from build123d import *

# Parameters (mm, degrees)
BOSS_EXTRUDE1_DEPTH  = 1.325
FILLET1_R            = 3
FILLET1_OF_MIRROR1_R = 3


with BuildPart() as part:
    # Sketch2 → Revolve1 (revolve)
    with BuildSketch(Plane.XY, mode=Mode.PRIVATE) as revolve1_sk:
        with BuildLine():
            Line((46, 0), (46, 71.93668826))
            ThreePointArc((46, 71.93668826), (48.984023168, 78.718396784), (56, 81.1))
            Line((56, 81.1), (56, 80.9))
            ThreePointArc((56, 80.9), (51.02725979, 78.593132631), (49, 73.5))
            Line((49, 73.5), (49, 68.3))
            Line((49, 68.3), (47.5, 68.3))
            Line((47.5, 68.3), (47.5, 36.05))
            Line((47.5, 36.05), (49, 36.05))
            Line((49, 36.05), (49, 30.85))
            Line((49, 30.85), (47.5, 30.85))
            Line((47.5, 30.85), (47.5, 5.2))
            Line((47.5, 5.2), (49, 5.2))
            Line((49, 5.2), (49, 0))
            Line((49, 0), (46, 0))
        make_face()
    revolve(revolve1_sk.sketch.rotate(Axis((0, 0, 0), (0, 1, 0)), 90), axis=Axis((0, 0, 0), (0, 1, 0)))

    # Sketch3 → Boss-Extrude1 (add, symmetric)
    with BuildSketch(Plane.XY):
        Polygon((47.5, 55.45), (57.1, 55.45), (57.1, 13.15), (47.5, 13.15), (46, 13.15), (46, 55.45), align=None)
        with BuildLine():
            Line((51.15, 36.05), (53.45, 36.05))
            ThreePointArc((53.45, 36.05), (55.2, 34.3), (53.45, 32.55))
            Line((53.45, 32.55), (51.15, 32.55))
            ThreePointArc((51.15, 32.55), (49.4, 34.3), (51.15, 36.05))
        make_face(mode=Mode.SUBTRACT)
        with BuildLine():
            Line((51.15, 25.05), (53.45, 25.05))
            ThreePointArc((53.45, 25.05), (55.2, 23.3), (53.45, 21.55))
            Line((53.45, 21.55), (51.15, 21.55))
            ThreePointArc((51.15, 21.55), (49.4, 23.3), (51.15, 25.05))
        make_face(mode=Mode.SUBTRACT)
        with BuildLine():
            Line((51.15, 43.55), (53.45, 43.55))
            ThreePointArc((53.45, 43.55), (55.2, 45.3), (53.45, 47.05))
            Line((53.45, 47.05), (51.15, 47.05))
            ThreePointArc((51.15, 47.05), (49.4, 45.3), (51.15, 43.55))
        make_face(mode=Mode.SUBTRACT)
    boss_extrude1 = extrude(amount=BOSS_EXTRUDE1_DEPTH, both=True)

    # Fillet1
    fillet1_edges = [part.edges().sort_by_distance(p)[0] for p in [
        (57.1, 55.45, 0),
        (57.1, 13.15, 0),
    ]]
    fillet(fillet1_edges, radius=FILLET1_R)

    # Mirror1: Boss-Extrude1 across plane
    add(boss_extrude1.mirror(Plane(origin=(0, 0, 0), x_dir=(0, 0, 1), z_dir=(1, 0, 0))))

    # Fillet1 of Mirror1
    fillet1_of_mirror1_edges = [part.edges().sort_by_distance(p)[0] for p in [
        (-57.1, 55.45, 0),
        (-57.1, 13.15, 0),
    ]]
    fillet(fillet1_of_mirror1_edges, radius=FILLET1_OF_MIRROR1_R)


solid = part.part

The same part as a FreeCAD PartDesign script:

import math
import FreeCAD as App
import Part
import Sketcher
Q = App.Units.Quantity


def edges_at(feature, points):
    """Names of the edges that pass closest to the given points."""
    edges = feature.Shape.Edges
    near = lambda p: min(range(len(edges)), key=lambda i: edges[i].distToShape(Part.Vertex(*p))[0])
    return sorted({f"Edge{near(p) + 1}" for p in points})

doc = App.newDocument("Part")
body = doc.addObject("PartDesign::Body", "Body")

# Sketch on XY plane
sketch1 = body.newObject("Sketcher::SketchObject", "Sketch")
sketch1.AttachmentSupport = (doc.getObject("XY_Plane"), [""])
sketch1.MapMode = "FlatFace"
sketch1.addGeometry(Part.LineSegment(App.Vector(46, 71.936688, 0), App.Vector(46, 0, 0)), False)
sketch1.addGeometry(Part.LineSegment(App.Vector(46, 0, 0), App.Vector(49, 0, 0)), False)
sketch1.addGeometry(Part.LineSegment(App.Vector(49, 0, 0), App.Vector(49, 5.2, 0)), False)
sketch1.addGeometry(Part.LineSegment(App.Vector(49, 5.2, 0), App.Vector(47.5, 5.2, 0)), False)
sketch1.addGeometry(Part.LineSegment(App.Vector(47.5, 5.2, 0), App.Vector(47.5, 30.85, 0)), False)
sketch1.addGeometry(Part.LineSegment(App.Vector(47.5, 30.85, 0), App.Vector(49, 30.85, 0)), False)
sketch1.addGeometry(Part.LineSegment(App.Vector(49, 30.85, 0), App.Vector(49, 36.05, 0)), False)
sketch1.addGeometry(Part.LineSegment(App.Vector(49, 36.05, 0), App.Vector(47.5, 36.05, 0)), False)
sketch1.addGeometry(Part.LineSegment(App.Vector(47.5, 36.05, 0), App.Vector(47.5, 68.3, 0)), False)
sketch1.addGeometry(Part.LineSegment(App.Vector(47.5, 68.3, 0), App.Vector(49, 68.3, 0)), False)
sketch1.addGeometry(Part.LineSegment(App.Vector(49, 68.3, 0), App.Vector(49, 73.5, 0)), False)
sketch1.addGeometry(Part.ArcOfCircle(Part.Circle(App.Vector(56.411429, 73.5, 0), App.Vector(0, 0, 1), 7.411429), math.radians(93.182281), math.radians(180)), False)
sketch1.addGeometry(Part.LineSegment(App.Vector(56, 80.9, 0), App.Vector(56, 81.1, 0)), False)
sketch1.addGeometry(Part.ArcOfCircle(Part.Circle(App.Vector(55.198314, 71.936688, 0), App.Vector(0, 0, 1), 9.198314), math.radians(85), math.radians(180)), False)
sketch1.addConstraint(Sketcher.Constraint("Coincident", 0, 2, 1, 1))
sketch1.addConstraint(Sketcher.Constraint("Coincident", 1, 2, 2, 1))
sketch1.addConstraint(Sketcher.Constraint("Coincident", 2, 2, 3, 1))
sketch1.addConstraint(Sketcher.Constraint("Coincident", 3, 2, 4, 1))
sketch1.addConstraint(Sketcher.Constraint("Coincident", 4, 2, 5, 1))
sketch1.addConstraint(Sketcher.Constraint("Coincident", 5, 2, 6, 1))
sketch1.addConstraint(Sketcher.Constraint("Coincident", 6, 2, 7, 1))
sketch1.addConstraint(Sketcher.Constraint("Coincident", 7, 2, 8, 1))
sketch1.addConstraint(Sketcher.Constraint("Coincident", 8, 2, 9, 1))
sketch1.addConstraint(Sketcher.Constraint("Coincident", 9, 2, 10, 1))
sketch1.addConstraint(Sketcher.Constraint("Tangent", 10, 2, 11, 2))
sketch1.addConstraint(Sketcher.Constraint("Coincident", 11, 1, 12, 1))
sketch1.addConstraint(Sketcher.Constraint("Coincident", 12, 2, 13, 1))
sketch1.addConstraint(Sketcher.Constraint("Tangent", 13, 2, 0, 1))
sketch1.addConstraint(Sketcher.Constraint("Vertical", 0))
sketch1.addConstraint(Sketcher.Constraint("Horizontal", 1))
sketch1.addConstraint(Sketcher.Constraint("Vertical", 2))
sketch1.addConstraint(Sketcher.Constraint("Horizontal", 3))
sketch1.addConstraint(Sketcher.Constraint("Vertical", 4))
sketch1.addConstraint(Sketcher.Constraint("Horizontal", 5))
sketch1.addConstraint(Sketcher.Constraint("Vertical", 6))
sketch1.addConstraint(Sketcher.Constraint("Horizontal", 7))
sketch1.addConstraint(Sketcher.Constraint("Vertical", 8))
sketch1.addConstraint(Sketcher.Constraint("Horizontal", 9))
sketch1.addConstraint(Sketcher.Constraint("Vertical", 10))
sketch1.addConstraint(Sketcher.Constraint("Vertical", 12))
sketch1.addConstraint(Sketcher.Constraint("PointOnObject", 0, 2, -1))
sketch1.addConstraint(Sketcher.Constraint("Vertical", 2, 2, 5, 2))
sketch1.addConstraint(Sketcher.Constraint("Vertical", 4, 2, 7, 2))
sketch1.addConstraint(Sketcher.Constraint("Vertical", 6, 2, 9, 2))
sketch1.addConstraint(Sketcher.Constraint("Equal", 2, 6))
sketch1.addConstraint(Sketcher.Constraint("Equal", 6, 10))
sketch1.addConstraint(Sketcher.Constraint("DistanceX", 1, 1, 1, 2, Q("3 mm")))
sketch1.addConstraint(Sketcher.Constraint("DistanceX", 3, 2, 3, 1, Q("1.5 mm")))
sketch1.addConstraint(Sketcher.Constraint("DistanceY", 2, 1, 2, 2, Q("5.2 mm")))
sketch1.addConstraint(Sketcher.Constraint("DistanceY", 12, 1, 12, 2, Q("0.2 mm")))
sketch1.addConstraint(Sketcher.Constraint("DistanceX", -1, 1, 0, 2, Q("46 mm")))
sketch1.addConstraint(Sketcher.Constraint("DistanceX", -1, 1, 11, 1, Q("56 mm")))
sketch1.addConstraint(Sketcher.Constraint("DistanceY", 4, 1, 4, 2, Q("25.65 mm")))
sketch1.addConstraint(Sketcher.Constraint("DistanceY", 8, 1, 8, 2, Q("32.25 mm")))
sketch1.addConstraint(Sketcher.Constraint("DistanceY", -1, 1, 11, 1, Q("80.9 mm")))
sketch1.addConstraint(Sketcher.Constraint("Radius", 13, Q("9.198314 mm")))
revolution = body.newObject("PartDesign::Revolution", "Revolution")
revolution.Profile = sketch1
revolution.ReferenceAxis = (sketch1, ["V_Axis"])
revolution.Angle = 360

# Sketch on XY plane
sketch2 = body.newObject("Sketcher::SketchObject", "Sketch001")
sketch2.AttachmentSupport = (doc.getObject("XY_Plane"), [""])
sketch2.MapMode = "FlatFace"
sketch2.addGeometry(Part.LineSegment(App.Vector(57.1, 55.45, 0), App.Vector(46, 55.45, 0)), False)
sketch2.addGeometry(Part.LineSegment(App.Vector(46, 55.45, 0), App.Vector(46, 13.15, 0)), False)
sketch2.addGeometry(Part.LineSegment(App.Vector(46, 13.15, 0), App.Vector(57.1, 13.15, 0)), False)
sketch2.addGeometry(Part.LineSegment(App.Vector(57.1, 13.15, 0), App.Vector(57.1, 55.45, 0)), False)
sketch2.addGeometry(Part.LineSegment(App.Vector(51.15, 25.05, 0), App.Vector(53.45, 25.05, 0)), False)
sketch2.addGeometry(Part.ArcOfCircle(Part.Circle(App.Vector(53.45, 23.3, 0), App.Vector(0, 0, 1), 1.75), math.radians(-90), math.radians(90)), False)
sketch2.addGeometry(Part.LineSegment(App.Vector(53.45, 21.55, 0), App.Vector(51.15, 21.55, 0)), False)
sketch2.addGeometry(Part.ArcOfCircle(Part.Circle(App.Vector(51.15, 23.3, 0), App.Vector(0, 0, 1), 1.75), math.radians(90), math.radians(270)), False)
sketch2.addGeometry(Part.LineSegment(App.Vector(51.15, 36.05, 0), App.Vector(53.45, 36.05, 0)), False)
sketch2.addGeometry(Part.ArcOfCircle(Part.Circle(App.Vector(53.45, 34.3, 0), App.Vector(0, 0, 1), 1.75), math.radians(-90), math.radians(90)), False)
sketch2.addGeometry(Part.LineSegment(App.Vector(53.45, 32.55, 0), App.Vector(51.15, 32.55, 0)), False)
sketch2.addGeometry(Part.ArcOfCircle(Part.Circle(App.Vector(51.15, 34.3, 0), App.Vector(0, 0, 1), 1.75), math.radians(90), math.radians(270)), False)
sketch2.addGeometry(Part.ArcOfCircle(Part.Circle(App.Vector(51.15, 45.3, 0), App.Vector(0, 0, 1), 1.75), math.radians(90), math.radians(270)), False)
sketch2.addGeometry(Part.LineSegment(App.Vector(51.15, 47.05, 0), App.Vector(53.45, 47.05, 0)), False)
sketch2.addGeometry(Part.ArcOfCircle(Part.Circle(App.Vector(53.45, 45.3, 0), App.Vector(0, 0, 1), 1.75), math.radians(-90), math.radians(90)), False)
sketch2.addGeometry(Part.LineSegment(App.Vector(53.45, 43.55, 0), App.Vector(51.15, 43.55, 0)), False)
sketch2.addConstraint(Sketcher.Constraint("Coincident", 0, 2, 1, 1))
sketch2.addConstraint(Sketcher.Constraint("Coincident", 1, 2, 2, 1))
sketch2.addConstraint(Sketcher.Constraint("Coincident", 2, 2, 3, 1))
sketch2.addConstraint(Sketcher.Constraint("Coincident", 3, 2, 0, 1))
sketch2.addConstraint(Sketcher.Constraint("Tangent", 4, 2, 5, 2))
sketch2.addConstraint(Sketcher.Constraint("Tangent", 5, 1, 6, 1))
sketch2.addConstraint(Sketcher.Constraint("Tangent", 6, 2, 7, 2))
sketch2.addConstraint(Sketcher.Constraint("Tangent", 7, 1, 4, 1))
sketch2.addConstraint(Sketcher.Constraint("Tangent", 8, 2, 9, 2))
sketch2.addConstraint(Sketcher.Constraint("Tangent", 9, 1, 10, 1))
sketch2.addConstraint(Sketcher.Constraint("Tangent", 10, 2, 11, 2))
sketch2.addConstraint(Sketcher.Constraint("Tangent", 11, 1, 8, 1))
sketch2.addConstraint(Sketcher.Constraint("Tangent", 12, 1, 13, 1))
sketch2.addConstraint(Sketcher.Constraint("Tangent", 13, 2, 14, 2))
sketch2.addConstraint(Sketcher.Constraint("Tangent", 14, 1, 15, 1))
sketch2.addConstraint(Sketcher.Constraint("Tangent", 15, 2, 12, 2))
sketch2.addConstraint(Sketcher.Constraint("Horizontal", 0))
sketch2.addConstraint(Sketcher.Constraint("Vertical", 1))
sketch2.addConstraint(Sketcher.Constraint("Horizontal", 2))
sketch2.addConstraint(Sketcher.Constraint("Vertical", 3))
sketch2.addConstraint(Sketcher.Constraint("Horizontal", 4))
sketch2.addConstraint(Sketcher.Constraint("Horizontal", 6))
sketch2.addConstraint(Sketcher.Constraint("Horizontal", 8))
sketch2.addConstraint(Sketcher.Constraint("Horizontal", 10))
sketch2.addConstraint(Sketcher.Constraint("Horizontal", 13))
sketch2.addConstraint(Sketcher.Constraint("Horizontal", 15))
sketch2.addConstraint(Sketcher.Constraint("Equal", 7, 9))
sketch2.addConstraint(Sketcher.Constraint("Equal", 11, 12))
sketch2.addConstraint(Sketcher.Constraint("Vertical", 5, 3, 9, 3))
sketch2.addConstraint(Sketcher.Constraint("Vertical", 7, 3, 11, 3))
sketch2.addConstraint(Sketcher.Constraint("Vertical", 11, 3, 12, 3))
sketch2.addConstraint(Sketcher.Constraint("Vertical", 9, 3, 14, 3))
sketch2.addConstraint(Sketcher.Constraint("Radius", 5, Q("1.75 mm")))
sketch2.addConstraint(Sketcher.Constraint("DistanceX", 0, 2, 0, 1, Q("11.1 mm")))
sketch2.addConstraint(Sketcher.Constraint("DistanceX", 4, 1, 4, 2, Q("2.3 mm")))
sketch2.addConstraint(Sketcher.Constraint("DistanceY", 1, 2, 1, 1, Q("42.3 mm")))
sketch2.addConstraint(Sketcher.Constraint("DistanceX", -1, 1, 0, 2, Q("46 mm")))
sketch2.addConstraint(Sketcher.Constraint("DistanceY", 5, 3, 9, 3, Q("11 mm")))
sketch2.addConstraint(Sketcher.Constraint("DistanceY", 11, 3, 12, 3, Q("11 mm")))
sketch2.addConstraint(Sketcher.Constraint("DistanceY", -1, 1, 5, 3, Q("23.3 mm")))
sketch2.addConstraint(Sketcher.Constraint("DistanceY", 2, 2, 4, 2, Q("11.9 mm")))
sketch2.addConstraint(Sketcher.Constraint("DistanceX", -1, 1, 5, 3, Q("53.45 mm")))
pad1 = body.newObject("PartDesign::Pad", "Pad")
pad1.Profile = sketch2
pad1.Length = 2.65
pad1.Midplane = True
doc.recompute()

fillet = body.newObject("PartDesign::Fillet", "Fillet")
fillet.Base = (pad1, edges_at(pad1, [(57.1, 55.45, 0), (57.1, 13.15, 0)]))
fillet.Radius = 3
doc.recompute()

mirrored = body.newObject("PartDesign::Mirrored", "Mirrored")
mirrored.Originals = [pad1]
mirrored.MirrorPlane = (doc.getObject("YZ_Plane"), [""])
body.Tip = mirrored
doc.recompute()

fillet2 = body.newObject("PartDesign::Fillet", "Fillet001")
fillet2.Base = (mirrored, edges_at(mirrored, [(-57.1, 55.45, 0), (-57.1, 13.15, 0)]))
fillet2.Radius = 3

doc.recompute()
